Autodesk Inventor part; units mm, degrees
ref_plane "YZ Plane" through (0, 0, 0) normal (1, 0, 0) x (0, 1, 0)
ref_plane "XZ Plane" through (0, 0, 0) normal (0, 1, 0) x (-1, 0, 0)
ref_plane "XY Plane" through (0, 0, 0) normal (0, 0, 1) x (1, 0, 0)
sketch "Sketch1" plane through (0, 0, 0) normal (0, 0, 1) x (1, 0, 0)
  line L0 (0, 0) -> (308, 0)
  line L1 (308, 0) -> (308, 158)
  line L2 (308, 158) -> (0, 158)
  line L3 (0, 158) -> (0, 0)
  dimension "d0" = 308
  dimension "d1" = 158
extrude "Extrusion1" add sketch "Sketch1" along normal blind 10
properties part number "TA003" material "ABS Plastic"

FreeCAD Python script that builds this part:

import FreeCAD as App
import Part
import Sketcher
from FreeCAD import Vector
Q = App.Units.Quantity

doc = App.newDocument("Part")
body = doc.addObject("PartDesign::Body", "Body")

# Sketch on XY plane
sketch1 = body.newObject("Sketcher::SketchObject", "Sketch")
sketch1.AttachmentSupport = (doc.getObject("XY_Plane"), [""])
sketch1.MapMode = "FlatFace"
sketch1.addGeometry(Part.LineSegment(Vector(0, 158, 0), Vector(0, 0, 0)), False)
sketch1.addGeometry(Part.LineSegment(Vector(0, 0, 0), Vector(308, 0, 0)), False)
sketch1.addGeometry(Part.LineSegment(Vector(308, 0, 0), Vector(308, 158, 0)), False)
sketch1.addGeometry(Part.LineSegment(Vector(308, 158, 0), Vector(0, 158, 0)), False)
sketch1.addConstraint(Sketcher.Constraint("Coincident", 0, 2, 1, 1))
sketch1.addConstraint(Sketcher.Constraint("Coincident", 1, 2, 2, 1))
sketch1.addConstraint(Sketcher.Constraint("Coincident", 2, 2, 3, 1))
sketch1.addConstraint(Sketcher.Constraint("Coincident", 3, 2, 0, 1))
sketch1.addConstraint(Sketcher.Constraint("Vertical", 0))
sketch1.addConstraint(Sketcher.Constraint("Horizontal", 1))
sketch1.addConstraint(Sketcher.Constraint("Vertical", 2))
sketch1.addConstraint(Sketcher.Constraint("Horizontal", 3))
sketch1.addConstraint(Sketcher.Constraint("Coincident", 0, 2, -1, 1))
sketch1.addConstraint(Sketcher.Constraint("DistanceX", 1, 1, 1, 2, Q("308 mm")))
sketch1.addConstraint(Sketcher.Constraint("DistanceY", 0, 2, 0, 1, Q("158 mm")))
pad1 = body.newObject("PartDesign::Pad", "Pad")
pad1.Profile = sketch1
pad1.Length = 10

doc.recompute()
